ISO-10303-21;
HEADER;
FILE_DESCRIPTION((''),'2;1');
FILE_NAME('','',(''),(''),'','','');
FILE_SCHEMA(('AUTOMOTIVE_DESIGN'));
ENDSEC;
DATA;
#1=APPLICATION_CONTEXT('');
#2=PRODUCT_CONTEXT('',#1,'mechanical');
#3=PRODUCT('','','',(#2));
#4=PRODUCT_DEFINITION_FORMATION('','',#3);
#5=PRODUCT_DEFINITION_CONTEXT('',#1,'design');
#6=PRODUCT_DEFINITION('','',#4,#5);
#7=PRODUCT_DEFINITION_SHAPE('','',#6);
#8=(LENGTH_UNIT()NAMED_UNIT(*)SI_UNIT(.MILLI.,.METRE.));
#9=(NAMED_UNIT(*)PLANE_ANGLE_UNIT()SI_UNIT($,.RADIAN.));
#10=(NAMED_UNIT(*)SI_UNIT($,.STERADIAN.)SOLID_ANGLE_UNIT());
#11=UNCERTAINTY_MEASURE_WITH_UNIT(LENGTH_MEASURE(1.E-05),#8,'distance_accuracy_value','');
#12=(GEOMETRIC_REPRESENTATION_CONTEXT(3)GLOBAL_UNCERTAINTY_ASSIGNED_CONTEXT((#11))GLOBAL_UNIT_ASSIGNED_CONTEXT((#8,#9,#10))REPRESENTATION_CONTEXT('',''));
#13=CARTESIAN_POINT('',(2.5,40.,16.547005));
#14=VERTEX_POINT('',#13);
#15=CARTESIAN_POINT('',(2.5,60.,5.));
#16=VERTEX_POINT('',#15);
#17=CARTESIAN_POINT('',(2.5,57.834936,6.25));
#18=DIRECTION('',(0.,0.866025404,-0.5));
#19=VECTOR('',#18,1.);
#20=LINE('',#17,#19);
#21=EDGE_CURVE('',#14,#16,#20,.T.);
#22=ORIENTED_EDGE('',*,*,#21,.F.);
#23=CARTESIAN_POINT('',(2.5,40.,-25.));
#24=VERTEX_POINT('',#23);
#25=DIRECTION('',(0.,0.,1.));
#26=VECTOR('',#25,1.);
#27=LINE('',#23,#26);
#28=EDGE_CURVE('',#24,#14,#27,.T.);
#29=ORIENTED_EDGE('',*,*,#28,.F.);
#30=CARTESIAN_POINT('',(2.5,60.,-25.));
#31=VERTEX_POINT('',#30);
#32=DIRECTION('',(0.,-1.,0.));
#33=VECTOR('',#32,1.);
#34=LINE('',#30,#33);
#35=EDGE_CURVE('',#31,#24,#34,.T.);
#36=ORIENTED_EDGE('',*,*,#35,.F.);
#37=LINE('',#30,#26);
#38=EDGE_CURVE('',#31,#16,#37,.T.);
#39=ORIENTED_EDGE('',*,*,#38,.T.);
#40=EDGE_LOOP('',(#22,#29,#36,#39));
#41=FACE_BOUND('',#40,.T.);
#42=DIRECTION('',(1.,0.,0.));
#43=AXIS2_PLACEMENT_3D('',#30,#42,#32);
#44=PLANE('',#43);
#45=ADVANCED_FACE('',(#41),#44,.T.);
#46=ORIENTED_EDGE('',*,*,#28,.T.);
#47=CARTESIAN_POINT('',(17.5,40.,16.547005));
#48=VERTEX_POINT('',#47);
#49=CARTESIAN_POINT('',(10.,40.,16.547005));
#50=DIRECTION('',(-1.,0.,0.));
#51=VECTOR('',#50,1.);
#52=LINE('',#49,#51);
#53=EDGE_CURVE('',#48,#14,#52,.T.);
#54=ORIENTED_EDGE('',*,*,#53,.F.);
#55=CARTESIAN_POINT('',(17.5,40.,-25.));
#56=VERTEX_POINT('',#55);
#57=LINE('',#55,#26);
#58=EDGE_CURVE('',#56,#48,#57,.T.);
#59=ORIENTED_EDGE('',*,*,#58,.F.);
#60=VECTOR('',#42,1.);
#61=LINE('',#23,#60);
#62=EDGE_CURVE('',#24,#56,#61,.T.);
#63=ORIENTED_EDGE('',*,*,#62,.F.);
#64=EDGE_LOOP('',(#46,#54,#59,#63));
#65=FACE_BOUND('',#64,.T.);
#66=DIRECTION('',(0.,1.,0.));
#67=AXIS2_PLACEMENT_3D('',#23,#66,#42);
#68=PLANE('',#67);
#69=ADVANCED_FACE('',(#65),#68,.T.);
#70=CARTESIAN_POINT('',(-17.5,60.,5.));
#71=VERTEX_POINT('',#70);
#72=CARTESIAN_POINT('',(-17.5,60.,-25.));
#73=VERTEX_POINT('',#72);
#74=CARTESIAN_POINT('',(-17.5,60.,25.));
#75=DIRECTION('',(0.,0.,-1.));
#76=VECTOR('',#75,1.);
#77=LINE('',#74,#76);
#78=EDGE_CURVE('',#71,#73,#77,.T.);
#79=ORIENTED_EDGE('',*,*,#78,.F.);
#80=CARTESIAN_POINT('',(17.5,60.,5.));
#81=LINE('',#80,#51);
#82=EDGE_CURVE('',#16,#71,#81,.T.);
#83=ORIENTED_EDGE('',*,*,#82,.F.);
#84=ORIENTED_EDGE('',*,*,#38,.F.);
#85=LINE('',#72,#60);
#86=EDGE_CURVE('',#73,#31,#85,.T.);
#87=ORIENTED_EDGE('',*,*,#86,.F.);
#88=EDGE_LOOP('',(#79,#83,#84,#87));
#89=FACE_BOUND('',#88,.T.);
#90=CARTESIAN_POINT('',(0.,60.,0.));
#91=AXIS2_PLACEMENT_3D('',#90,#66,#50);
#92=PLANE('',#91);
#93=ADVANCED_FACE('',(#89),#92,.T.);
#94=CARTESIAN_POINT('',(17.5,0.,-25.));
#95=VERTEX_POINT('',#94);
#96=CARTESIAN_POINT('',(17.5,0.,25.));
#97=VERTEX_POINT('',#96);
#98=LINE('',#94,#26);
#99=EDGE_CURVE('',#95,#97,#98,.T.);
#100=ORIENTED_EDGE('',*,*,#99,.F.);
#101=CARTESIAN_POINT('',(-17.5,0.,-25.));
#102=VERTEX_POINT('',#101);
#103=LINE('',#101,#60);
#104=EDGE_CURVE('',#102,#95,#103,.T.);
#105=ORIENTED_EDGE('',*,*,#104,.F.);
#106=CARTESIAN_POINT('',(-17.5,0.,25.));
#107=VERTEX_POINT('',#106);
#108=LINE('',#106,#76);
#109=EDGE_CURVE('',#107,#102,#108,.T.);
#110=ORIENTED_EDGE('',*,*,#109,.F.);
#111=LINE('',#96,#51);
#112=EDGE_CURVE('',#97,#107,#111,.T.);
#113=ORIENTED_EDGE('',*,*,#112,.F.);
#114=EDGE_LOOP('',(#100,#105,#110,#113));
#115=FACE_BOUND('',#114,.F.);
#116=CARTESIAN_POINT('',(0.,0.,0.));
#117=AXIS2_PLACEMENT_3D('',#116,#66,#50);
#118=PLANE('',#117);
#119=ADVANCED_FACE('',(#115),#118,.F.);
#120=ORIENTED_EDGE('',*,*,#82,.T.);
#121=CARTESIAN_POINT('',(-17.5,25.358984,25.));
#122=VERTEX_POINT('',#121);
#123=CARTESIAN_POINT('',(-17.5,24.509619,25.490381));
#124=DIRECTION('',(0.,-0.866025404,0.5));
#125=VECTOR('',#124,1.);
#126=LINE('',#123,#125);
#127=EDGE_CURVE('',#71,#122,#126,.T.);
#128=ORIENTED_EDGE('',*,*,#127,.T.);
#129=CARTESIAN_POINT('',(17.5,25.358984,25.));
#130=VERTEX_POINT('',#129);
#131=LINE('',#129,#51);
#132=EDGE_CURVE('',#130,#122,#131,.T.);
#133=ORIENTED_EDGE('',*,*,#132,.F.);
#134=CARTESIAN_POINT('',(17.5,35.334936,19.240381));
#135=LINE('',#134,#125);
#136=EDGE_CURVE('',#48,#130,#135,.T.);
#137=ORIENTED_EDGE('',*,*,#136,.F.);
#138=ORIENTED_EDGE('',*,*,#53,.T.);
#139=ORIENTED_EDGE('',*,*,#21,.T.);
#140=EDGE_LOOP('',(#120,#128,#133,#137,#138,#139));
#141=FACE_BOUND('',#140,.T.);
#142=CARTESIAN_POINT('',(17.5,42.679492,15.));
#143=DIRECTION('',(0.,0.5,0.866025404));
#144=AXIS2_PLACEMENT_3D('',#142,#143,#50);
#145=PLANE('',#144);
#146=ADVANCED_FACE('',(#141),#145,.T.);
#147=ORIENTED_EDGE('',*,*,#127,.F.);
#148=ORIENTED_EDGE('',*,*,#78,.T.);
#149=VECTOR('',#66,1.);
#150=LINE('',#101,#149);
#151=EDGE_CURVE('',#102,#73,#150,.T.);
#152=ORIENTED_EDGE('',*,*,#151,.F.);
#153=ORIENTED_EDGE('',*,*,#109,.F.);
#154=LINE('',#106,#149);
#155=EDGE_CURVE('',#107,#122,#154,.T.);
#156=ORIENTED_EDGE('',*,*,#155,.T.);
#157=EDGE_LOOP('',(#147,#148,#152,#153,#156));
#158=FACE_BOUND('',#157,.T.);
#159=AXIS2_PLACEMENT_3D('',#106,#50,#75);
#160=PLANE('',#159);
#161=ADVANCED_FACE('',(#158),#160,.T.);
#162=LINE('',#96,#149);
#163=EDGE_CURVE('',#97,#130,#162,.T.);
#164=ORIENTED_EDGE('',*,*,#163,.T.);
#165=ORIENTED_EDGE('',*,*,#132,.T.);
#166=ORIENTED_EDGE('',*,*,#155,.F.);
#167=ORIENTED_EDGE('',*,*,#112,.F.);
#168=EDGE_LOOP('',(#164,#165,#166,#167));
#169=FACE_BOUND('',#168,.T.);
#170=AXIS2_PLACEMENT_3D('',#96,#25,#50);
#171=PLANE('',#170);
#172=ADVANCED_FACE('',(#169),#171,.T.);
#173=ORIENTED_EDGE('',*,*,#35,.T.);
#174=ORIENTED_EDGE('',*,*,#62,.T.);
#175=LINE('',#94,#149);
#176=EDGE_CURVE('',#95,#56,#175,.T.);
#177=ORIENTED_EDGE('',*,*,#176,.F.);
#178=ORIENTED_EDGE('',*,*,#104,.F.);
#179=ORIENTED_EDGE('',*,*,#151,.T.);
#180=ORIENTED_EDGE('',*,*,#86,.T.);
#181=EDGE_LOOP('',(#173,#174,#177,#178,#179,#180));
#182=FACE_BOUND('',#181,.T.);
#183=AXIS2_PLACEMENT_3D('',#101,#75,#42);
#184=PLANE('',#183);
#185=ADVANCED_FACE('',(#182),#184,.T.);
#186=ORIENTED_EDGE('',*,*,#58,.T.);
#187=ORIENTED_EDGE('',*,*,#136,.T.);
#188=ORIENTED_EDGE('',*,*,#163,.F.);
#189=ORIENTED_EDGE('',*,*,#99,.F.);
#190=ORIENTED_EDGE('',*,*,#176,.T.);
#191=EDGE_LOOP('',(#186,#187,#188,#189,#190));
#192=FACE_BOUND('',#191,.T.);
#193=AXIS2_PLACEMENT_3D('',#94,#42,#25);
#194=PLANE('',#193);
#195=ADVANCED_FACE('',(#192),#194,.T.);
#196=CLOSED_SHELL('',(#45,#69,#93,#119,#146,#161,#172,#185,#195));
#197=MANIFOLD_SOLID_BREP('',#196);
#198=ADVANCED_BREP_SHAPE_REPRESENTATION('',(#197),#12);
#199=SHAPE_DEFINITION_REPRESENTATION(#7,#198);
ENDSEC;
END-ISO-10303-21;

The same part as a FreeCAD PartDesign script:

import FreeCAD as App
import Part
import Sketcher
from FreeCAD import Vector
Q = App.Units.Quantity


def edges_at(feature, points):
    """Names of the edges that pass closest to the given points."""
    edges = feature.Shape.Edges
    near = lambda p: min(range(len(edges)), key=lambda i: edges[i].distToShape(Part.Vertex(*p))[0])
    return sorted({f"Edge{near(p) + 1}" for p in points})


def add_polygon(sketch, points):
    """Adds a closed chain of lines whose ends are joined by coincident constraints."""
    first, n = sketch.GeometryCount, len(points)
    for a, b in zip(points, points[1:] + points[:1]):
        sketch.addGeometry(Part.LineSegment(App.Vector(*a, 0), App.Vector(*b, 0)), False)
    for i in range(n):
        sketch.addConstraint(Sketcher.Constraint("Coincident", first + i, 2, first + (i + 1) % n, 1))

doc = App.newDocument("Part")
body = doc.addObject("PartDesign::Body", "Body")

sketch1 = doc.addObject("Sketcher::SketchObject", "Sketch")
body.addObject(sketch1)
sketch1.AttachmentSupport = (doc.XZ_Plane, [""])
sketch1.MapMode = "FlatFace"
add_polygon(sketch1, [(18, -25), (-18, -25), (-18, 25), (18, 25)])
sketch1.addConstraint([
    Sketcher.Constraint("Horizontal", 0),
    Sketcher.Constraint("Vertical", 1),
    Sketcher.Constraint("Horizontal", 2),
    Sketcher.Constraint("Vertical", 3),
    Sketcher.Constraint("Symmetric", 0, 2, 2, 2, -1, 1),
    Sketcher.Constraint("DistanceX", 0, 2, 0, 1, Q("35 mm")),
    Sketcher.Constraint("DistanceY", 1, 1, 1, 2, Q("50 mm")),
])
pad1 = doc.addObject("PartDesign::Pad", "Pad")
body.addObject(pad1)
pad1.Profile = sketch1
pad1.Length = 60
pad1.Reversed = True
doc.recompute()

chamfer = doc.addObject("PartDesign::Chamfer", "Chamfer")
body.addObject(chamfer)
chamfer.Base = (pad1, edges_at(pad1, [(0, 60, 25)]))
chamfer.ChamferType = "Distance and Angle"
chamfer.Size = 20
chamfer.Angle = 60
chamfer.FlipDirection = True

sketch2 = doc.addObject("Sketcher::SketchObject", "Sketch001")
body.addObject(sketch2)
sketch2.AttachmentSupport = (doc.XY_Plane, [""])
sketch2.MapMode = "FlatFace"
sketch2.AttachmentOffset = App.Placement(Vector(0, 0, -25), App.Rotation())
add_polygon(sketch2, [(2, 60), (18, 60), (18, 40), (2, 40)])
sketch2.addConstraint([
    Sketcher.Constraint("Horizontal", 0),
    Sketcher.Constraint("Vertical", 1),
    Sketcher.Constraint("Horizontal", 2),
    Sketcher.Constraint("Vertical", 3),
    Sketcher.Constraint("DistanceY", 1, 2, 1, 1, Q("20 mm")),
    Sketcher.Constraint("DistanceY", -1, 1, 1, 2, Q("40 mm")),
    Sketcher.Constraint("DistanceX", 0, 1, 0, 2, Q("15 mm")),
    Sketcher.Constraint("DistanceX", -1, 1, 0, 2, Q("17.5 mm")),
])
pocket1 = doc.addObject("PartDesign::Pocket", "Pocket")
body.addObject(pocket1)
pocket1.Profile = sketch2
pocket1.Type = "ThroughAll"
pocket1.Reversed = True

doc.recompute()
